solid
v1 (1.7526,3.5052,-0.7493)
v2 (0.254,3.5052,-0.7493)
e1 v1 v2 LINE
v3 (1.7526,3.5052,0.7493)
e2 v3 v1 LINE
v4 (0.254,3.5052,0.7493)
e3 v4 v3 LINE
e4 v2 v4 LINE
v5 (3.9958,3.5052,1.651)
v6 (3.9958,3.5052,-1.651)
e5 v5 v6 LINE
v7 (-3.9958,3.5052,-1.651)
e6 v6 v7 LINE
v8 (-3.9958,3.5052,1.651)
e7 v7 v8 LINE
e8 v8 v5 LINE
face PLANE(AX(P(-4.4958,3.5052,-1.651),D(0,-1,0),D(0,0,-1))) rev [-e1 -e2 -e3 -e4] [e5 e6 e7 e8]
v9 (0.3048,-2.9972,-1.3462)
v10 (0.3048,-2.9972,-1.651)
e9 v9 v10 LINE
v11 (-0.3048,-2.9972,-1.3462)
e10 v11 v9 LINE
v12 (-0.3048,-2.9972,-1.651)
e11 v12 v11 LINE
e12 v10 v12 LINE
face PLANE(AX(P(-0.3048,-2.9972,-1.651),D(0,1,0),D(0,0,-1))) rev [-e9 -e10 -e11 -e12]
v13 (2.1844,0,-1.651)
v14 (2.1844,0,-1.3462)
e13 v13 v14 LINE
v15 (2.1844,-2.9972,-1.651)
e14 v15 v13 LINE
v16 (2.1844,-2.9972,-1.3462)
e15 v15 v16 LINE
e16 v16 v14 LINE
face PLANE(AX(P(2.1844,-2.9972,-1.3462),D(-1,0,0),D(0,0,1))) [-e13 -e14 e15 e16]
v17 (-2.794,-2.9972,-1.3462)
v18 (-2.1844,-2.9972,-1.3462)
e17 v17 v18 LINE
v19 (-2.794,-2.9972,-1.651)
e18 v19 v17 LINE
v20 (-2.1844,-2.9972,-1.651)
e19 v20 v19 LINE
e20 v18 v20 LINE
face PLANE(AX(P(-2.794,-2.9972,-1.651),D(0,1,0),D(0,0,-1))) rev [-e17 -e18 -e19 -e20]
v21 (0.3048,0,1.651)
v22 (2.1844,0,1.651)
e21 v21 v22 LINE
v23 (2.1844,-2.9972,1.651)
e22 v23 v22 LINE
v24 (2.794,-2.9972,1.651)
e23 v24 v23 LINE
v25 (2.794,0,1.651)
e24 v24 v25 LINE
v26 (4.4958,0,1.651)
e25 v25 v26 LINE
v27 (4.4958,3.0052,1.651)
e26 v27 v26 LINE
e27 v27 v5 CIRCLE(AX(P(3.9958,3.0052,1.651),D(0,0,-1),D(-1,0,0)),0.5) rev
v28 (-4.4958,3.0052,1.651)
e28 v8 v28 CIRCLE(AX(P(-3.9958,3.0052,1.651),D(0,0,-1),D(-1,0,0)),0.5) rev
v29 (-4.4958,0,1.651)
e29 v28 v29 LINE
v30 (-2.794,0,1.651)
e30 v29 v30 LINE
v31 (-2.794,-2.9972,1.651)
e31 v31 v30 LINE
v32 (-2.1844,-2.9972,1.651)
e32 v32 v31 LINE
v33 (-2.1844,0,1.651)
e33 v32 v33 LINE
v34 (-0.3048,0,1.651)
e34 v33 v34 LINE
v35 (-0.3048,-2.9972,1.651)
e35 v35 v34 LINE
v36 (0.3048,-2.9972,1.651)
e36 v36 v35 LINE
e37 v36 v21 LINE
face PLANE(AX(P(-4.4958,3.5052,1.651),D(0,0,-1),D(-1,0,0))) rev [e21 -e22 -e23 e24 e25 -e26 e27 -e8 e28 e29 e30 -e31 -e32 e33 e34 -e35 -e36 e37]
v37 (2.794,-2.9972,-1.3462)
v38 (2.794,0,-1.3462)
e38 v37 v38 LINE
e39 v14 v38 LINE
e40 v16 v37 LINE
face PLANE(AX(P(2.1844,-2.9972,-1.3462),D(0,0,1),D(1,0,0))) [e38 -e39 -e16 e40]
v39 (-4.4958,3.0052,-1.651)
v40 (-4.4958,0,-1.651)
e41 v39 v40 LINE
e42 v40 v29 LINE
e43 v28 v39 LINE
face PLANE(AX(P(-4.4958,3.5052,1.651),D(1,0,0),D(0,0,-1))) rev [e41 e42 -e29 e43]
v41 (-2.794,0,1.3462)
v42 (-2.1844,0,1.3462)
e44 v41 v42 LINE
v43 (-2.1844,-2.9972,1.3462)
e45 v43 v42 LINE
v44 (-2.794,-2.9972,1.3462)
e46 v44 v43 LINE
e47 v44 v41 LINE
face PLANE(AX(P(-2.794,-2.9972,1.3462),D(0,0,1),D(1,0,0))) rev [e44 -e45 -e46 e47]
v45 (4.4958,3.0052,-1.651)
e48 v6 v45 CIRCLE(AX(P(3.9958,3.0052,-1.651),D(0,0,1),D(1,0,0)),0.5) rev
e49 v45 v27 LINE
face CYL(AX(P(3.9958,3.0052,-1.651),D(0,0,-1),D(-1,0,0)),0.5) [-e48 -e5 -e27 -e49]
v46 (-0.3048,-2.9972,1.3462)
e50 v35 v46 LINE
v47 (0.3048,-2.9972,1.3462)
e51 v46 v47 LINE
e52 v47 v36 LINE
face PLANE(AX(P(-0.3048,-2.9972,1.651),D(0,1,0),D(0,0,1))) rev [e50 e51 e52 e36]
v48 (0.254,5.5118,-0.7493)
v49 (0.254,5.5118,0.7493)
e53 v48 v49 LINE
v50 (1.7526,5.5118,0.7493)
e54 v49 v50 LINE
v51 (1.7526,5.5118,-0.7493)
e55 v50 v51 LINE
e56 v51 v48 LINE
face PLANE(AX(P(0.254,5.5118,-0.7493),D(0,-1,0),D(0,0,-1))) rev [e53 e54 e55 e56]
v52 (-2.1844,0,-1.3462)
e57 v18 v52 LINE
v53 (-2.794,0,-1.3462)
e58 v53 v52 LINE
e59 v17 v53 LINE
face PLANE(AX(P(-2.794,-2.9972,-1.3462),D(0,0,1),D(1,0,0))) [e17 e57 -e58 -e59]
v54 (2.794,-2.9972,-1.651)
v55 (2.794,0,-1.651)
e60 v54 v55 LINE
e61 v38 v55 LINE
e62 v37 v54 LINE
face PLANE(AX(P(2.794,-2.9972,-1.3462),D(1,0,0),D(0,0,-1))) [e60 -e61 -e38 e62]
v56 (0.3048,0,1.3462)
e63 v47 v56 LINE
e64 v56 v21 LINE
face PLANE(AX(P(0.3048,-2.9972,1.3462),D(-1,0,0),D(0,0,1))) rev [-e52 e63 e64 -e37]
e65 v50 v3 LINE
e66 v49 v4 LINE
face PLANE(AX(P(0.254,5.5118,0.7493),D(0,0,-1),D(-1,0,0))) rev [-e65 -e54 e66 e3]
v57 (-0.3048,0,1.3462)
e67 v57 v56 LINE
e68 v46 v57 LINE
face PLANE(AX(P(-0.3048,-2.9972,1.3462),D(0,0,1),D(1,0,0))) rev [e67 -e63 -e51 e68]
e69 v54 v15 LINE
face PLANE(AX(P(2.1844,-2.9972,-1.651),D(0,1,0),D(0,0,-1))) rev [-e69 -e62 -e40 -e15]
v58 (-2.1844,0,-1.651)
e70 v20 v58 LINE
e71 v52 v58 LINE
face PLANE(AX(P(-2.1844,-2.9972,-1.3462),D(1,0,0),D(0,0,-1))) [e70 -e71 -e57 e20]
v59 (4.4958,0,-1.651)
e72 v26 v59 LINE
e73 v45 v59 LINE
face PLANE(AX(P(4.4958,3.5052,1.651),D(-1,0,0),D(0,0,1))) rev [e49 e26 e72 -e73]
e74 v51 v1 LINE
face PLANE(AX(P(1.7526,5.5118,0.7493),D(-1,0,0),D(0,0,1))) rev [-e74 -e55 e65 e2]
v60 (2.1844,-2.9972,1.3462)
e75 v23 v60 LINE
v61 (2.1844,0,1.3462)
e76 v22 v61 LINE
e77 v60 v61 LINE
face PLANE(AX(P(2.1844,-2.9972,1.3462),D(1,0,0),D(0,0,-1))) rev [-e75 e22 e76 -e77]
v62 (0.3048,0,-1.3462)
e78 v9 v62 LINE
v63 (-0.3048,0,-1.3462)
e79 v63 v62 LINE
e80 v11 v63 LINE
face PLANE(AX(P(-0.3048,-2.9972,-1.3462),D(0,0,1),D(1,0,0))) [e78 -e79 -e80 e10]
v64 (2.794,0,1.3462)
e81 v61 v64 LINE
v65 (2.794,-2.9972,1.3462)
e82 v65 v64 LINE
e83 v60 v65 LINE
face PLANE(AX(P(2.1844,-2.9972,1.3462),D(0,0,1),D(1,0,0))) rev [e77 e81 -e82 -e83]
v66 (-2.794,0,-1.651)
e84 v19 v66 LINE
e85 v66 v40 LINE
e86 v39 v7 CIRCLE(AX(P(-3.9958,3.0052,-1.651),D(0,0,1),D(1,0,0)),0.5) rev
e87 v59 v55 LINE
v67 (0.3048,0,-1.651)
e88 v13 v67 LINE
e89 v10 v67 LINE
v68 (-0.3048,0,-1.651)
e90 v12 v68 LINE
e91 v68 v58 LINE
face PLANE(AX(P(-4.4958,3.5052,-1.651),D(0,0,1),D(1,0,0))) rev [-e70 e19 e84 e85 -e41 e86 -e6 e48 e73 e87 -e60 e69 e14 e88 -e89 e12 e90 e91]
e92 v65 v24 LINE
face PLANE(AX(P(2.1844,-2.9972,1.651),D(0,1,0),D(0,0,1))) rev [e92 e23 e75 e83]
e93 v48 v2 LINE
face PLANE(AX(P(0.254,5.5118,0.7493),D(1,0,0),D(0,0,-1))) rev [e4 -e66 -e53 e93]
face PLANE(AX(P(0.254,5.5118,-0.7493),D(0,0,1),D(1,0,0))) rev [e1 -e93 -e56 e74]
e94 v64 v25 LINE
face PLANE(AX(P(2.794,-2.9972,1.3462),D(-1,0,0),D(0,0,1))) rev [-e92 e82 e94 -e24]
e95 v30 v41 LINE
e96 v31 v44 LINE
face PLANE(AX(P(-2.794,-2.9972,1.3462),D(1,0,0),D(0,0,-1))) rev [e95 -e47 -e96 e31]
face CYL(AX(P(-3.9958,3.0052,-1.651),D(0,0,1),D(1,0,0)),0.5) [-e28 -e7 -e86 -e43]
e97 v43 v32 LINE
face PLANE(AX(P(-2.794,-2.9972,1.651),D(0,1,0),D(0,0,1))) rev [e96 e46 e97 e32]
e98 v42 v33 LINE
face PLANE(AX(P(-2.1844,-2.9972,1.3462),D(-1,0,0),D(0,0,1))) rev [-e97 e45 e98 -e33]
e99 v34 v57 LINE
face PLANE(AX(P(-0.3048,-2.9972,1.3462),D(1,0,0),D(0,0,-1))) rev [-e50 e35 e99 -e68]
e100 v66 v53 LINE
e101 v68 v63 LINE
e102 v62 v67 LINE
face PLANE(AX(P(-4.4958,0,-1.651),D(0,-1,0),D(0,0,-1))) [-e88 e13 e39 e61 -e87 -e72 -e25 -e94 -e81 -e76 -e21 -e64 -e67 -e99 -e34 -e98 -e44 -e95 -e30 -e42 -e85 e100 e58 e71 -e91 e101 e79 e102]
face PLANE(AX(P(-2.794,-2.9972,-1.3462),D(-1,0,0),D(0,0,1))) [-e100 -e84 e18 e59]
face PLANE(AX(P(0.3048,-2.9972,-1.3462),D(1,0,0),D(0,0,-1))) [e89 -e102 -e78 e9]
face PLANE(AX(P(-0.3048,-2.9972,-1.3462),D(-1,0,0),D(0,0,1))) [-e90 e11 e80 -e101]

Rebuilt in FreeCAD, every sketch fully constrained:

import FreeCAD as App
import Part
import Sketcher

V = App.Vector
Q = App.Units.Quantity


def edges_at(feature, points):
    """Names of the edges that pass closest to the given points."""
    edges = feature.Shape.Edges
    near = lambda p: min(range(len(edges)), key=lambda i: edges[i].distToShape(Part.Vertex(*p))[0])
    return sorted({f"Edge{near(p) + 1}" for p in points})

doc = App.newDocument("Part")
body = doc.addObject("PartDesign::Body", "Body")

sketch1 = body.newObject("Sketcher::SketchObject", "Sketch")
sketch1.AttachmentSupport = (doc.getObject("XZ_Plane"), [""])
sketch1.MapMode = "FlatFace"
sketch1.addGeometry([
    Part.LineSegment(V(-4.4958, -1.651, 0), V(-4.4958, 1.651, 0)),
    Part.LineSegment(V(-4.4958, 1.651, 0), V(4.4958, 1.651, 0)),
    Part.LineSegment(V(4.4958, 1.651, 0), V(4.4958, -1.651, 0)),
    Part.LineSegment(V(4.4958, -1.651, 0), V(-4.4958, -1.651, 0)),
], False)
sketch1.addConstraint([
    Sketcher.Constraint("Coincident", 0, 2, 1, 1),
    Sketcher.Constraint("Coincident", 1, 2, 2, 1),
    Sketcher.Constraint("Coincident", 2, 2, 3, 1),
    Sketcher.Constraint("Coincident", 3, 2, 0, 1),
    Sketcher.Constraint("Vertical", 0),
    Sketcher.Constraint("Horizontal", 1),
    Sketcher.Constraint("Vertical", 2),
    Sketcher.Constraint("Horizontal", 3),
    Sketcher.Constraint("Symmetric", 0, 2, 2, 2, -1, 1),
    Sketcher.Constraint("DistanceY", 0, 1, 0, 2, Q("0.13 in")),
    Sketcher.Constraint("DistanceX", 1, 1, 1, 2, Q("0.354 in")),
])
pad1 = body.newObject("PartDesign::Pad", "Pad")
pad1.Profile = sketch1
pad1.Length = Q("0.138 in")
pad1.Reversed = True

sketch2 = body.newObject("Sketcher::SketchObject", "Sketch001")
sketch2.AttachmentSupport = (doc.getObject("XZ_Plane"), [""])
sketch2.MapMode = "FlatFace"
sketch2.AttachmentOffset = App.Placement(V(0, 0, -0.138 * 25.4), App.Rotation())
sketch2.addGeometry([
    Part.LineSegment(V(0.254, -0.7493, 0), V(0.254, 0.7493, 0)),
    Part.LineSegment(V(0.254, 0.7493, 0), V(1.7526, 0.7493, 0)),
    Part.LineSegment(V(1.7526, 0.7493, 0), V(1.7526, -0.7493, 0)),
    Part.LineSegment(V(1.7526, -0.7493, 0), V(0.254, -0.7493, 0)),
], False)
sketch2.addConstraint([
    Sketcher.Constraint("Coincident", 0, 2, 1, 1),
    Sketcher.Constraint("Coincident", 1, 2, 2, 1),
    Sketcher.Constraint("Coincident", 2, 2, 3, 1),
    Sketcher.Constraint("Coincident", 3, 2, 0, 1),
    Sketcher.Constraint("Vertical", 0),
    Sketcher.Constraint("Horizontal", 1),
    Sketcher.Constraint("Vertical", 2),
    Sketcher.Constraint("Horizontal", 3),
    Sketcher.Constraint("Equal", 3, 0),
    Sketcher.Constraint("DistanceX", 1, 1, 1, 2, Q("0.059 in")),
    Sketcher.Constraint("DistanceX", -1, 1, 0, 2, Q("0.01 in")),
    Sketcher.Constraint("DistanceY", -1, 1, 0, 2, Q("0.0295 in")),
])
pad2 = body.newObject("PartDesign::Pad", "Pad001")
pad2.Profile = sketch2
pad2.Length = Q("0.079 in")
pad2.Reversed = True

sketch3 = body.newObject("Sketcher::SketchObject", "Sketch002")
sketch3.AttachmentSupport = (doc.getObject("XZ_Plane"), [""])
sketch3.MapMode = "FlatFace"
sketch3.addGeometry([
    Part.LineSegment(V(2.1844, 1.651, 0), V(2.1844, 1.3462, 0)),
    Part.LineSegment(V(2.1844, 1.3462, 0), V(2.794, 1.3462, 0)),
    Part.LineSegment(V(2.794, 1.3462, 0), V(2.794, 1.651, 0)),
    Part.LineSegment(V(2.794, 1.651, 0), V(2.1844, 1.651, 0)),
], False)
sketch3.addConstraint([
    Sketcher.Constraint("Coincident", 0, 2, 1, 1),
    Sketcher.Constraint("Coincident", 1, 2, 2, 1),
    Sketcher.Constraint("Coincident", 2, 2, 3, 1),
    Sketcher.Constraint("Coincident", 3, 2, 0, 1),
    Sketcher.Constraint("Vertical", 0),
    Sketcher.Constraint("Horizontal", 1),
    Sketcher.Constraint("Vertical", 2),
    Sketcher.Constraint("Horizontal", 3),
    Sketcher.Constraint("DistanceX", 1, 1, 1, 2, Q("0.024 in")),
    Sketcher.Constraint("DistanceY", 0, 2, 0, 1, Q("0.012 in")),
    Sketcher.Constraint("DistanceX", -1, 1, 1, 2, Q("0.11 in")),
    Sketcher.Constraint("DistanceY", -1, 1, 0, 2, Q("0.053 in")),
])
pad3 = body.newObject("PartDesign::Pad", "Pad002")
pad3.Profile = sketch3
pad3.Length = Q("0.118 in")
doc.recompute()

linearpattern = body.newObject("PartDesign::LinearPattern", "LinearPattern")
linearpattern.Originals = [pad3]
linearpattern.Direction = (doc.getObject("X_Axis"), [""])
linearpattern.Mode = "offset"
linearpattern.Offset = Q("0.098 in")
linearpattern.Occurrences = 3
linearpattern.Reversed = True
body.Tip = linearpattern
doc.recompute()

mirrored = body.newObject("PartDesign::Mirrored", "Mirrored")
mirrored.Originals = [pad3]
mirrored.MirrorPlane = (doc.getObject("XY_Plane"), [""])
body.Tip = mirrored

sketch4 = body.newObject("Sketcher::SketchObject", "Sketch003")
sketch4.AttachmentSupport = (doc.getObject("XZ_Plane"), [""])
sketch4.MapMode = "FlatFace"
sketch4.addGeometry([
    Part.LineSegment(V(-0.3048, -1.3462, 0), V(-0.3048, -1.651, 0)),
    Part.LineSegment(V(-0.3048, -1.651, 0), V(0.3048, -1.651, 0)),
    Part.LineSegment(V(0.3048, -1.651, 0), V(0.3048, -1.3462, 0)),
    Part.LineSegment(V(0.3048, -1.3462, 0), V(-0.3048, -1.3462, 0)),
], False)
sketch4.addConstraint([
    Sketcher.Constraint("Coincident", 0, 2, 1, 1),
    Sketcher.Constraint("Coincident", 1, 2, 2, 1),
    Sketcher.Constraint("Coincident", 2, 2, 3, 1),
    Sketcher.Constraint("Coincident", 3, 2, 0, 1),
    Sketcher.Constraint("Vertical", 0),
    Sketcher.Constraint("Horizontal", 1),
    Sketcher.Constraint("Vertical", 2),
    Sketcher.Constraint("Horizontal", 3),
    Sketcher.Constraint("DistanceX", 1, 1, 1, 2, Q("0.024 in")),
    Sketcher.Constraint("DistanceY", 0, 2, 0, 1, Q("0.012 in")),
    Sketcher.Constraint("DistanceX", 0, 2, -1, 1, Q("0.012 in")),
    Sketcher.Constraint("DistanceY", 0, 2, -1, 1, Q("0.065 in")),
])
pad4 = body.newObject("PartDesign::Pad", "Pad003")
pad4.Profile = sketch4
pad4.Length = Q("0.118 in")

sketch5 = body.newObject("Sketcher::SketchObject", "Sketch004")
sketch5.AttachmentSupport = (doc.getObject("XZ_Plane"), [""])
sketch5.MapMode = "FlatFace"
sketch5.addGeometry([
    Part.LineSegment(V(-2.794, -1.3462, 0), V(-2.794, -1.651, 0)),
    Part.LineSegment(V(-2.794, -1.651, 0), V(-2.1844, -1.651, 0)),
    Part.LineSegment(V(-2.1844, -1.651, 0), V(-2.1844, -1.3462, 0)),
    Part.LineSegment(V(-2.1844, -1.3462, 0), V(-2.794, -1.3462, 0)),
], False)
sketch5.addConstraint([
    Sketcher.Constraint("Coincident", 0, 2, 1, 1),
    Sketcher.Constraint("Coincident", 1, 2, 2, 1),
    Sketcher.Constraint("Coincident", 2, 2, 3, 1),
    Sketcher.Constraint("Coincident", 3, 2, 0, 1),
    Sketcher.Constraint("Vertical", 0),
    Sketcher.Constraint("Horizontal", 1),
    Sketcher.Constraint("Vertical", 2),
    Sketcher.Constraint("Horizontal", 3),
    Sketcher.Constraint("DistanceX", 1, 1, 1, 2, Q("0.024 in")),
    Sketcher.Constraint("DistanceY", 0, 2, 0, 1, Q("0.012 in")),
    Sketcher.Constraint("DistanceX", 0, 2, -1, 1, Q("0.11 in")),
    Sketcher.Constraint("DistanceY", 0, 2, -1, 1, Q("0.065 in")),
])
pad5 = body.newObject("PartDesign::Pad", "Pad004")
pad5.Profile = sketch5
pad5.Length = Q("0.118 in")
doc.recompute()

fillet = body.newObject("PartDesign::Fillet", "Fillet")
fillet.Base = (pad5, edges_at(pad5, [(4.496, 3.505, 0), (-4.496, 3.505, 0)]))
fillet.Radius = 0.5

doc.recompute()
